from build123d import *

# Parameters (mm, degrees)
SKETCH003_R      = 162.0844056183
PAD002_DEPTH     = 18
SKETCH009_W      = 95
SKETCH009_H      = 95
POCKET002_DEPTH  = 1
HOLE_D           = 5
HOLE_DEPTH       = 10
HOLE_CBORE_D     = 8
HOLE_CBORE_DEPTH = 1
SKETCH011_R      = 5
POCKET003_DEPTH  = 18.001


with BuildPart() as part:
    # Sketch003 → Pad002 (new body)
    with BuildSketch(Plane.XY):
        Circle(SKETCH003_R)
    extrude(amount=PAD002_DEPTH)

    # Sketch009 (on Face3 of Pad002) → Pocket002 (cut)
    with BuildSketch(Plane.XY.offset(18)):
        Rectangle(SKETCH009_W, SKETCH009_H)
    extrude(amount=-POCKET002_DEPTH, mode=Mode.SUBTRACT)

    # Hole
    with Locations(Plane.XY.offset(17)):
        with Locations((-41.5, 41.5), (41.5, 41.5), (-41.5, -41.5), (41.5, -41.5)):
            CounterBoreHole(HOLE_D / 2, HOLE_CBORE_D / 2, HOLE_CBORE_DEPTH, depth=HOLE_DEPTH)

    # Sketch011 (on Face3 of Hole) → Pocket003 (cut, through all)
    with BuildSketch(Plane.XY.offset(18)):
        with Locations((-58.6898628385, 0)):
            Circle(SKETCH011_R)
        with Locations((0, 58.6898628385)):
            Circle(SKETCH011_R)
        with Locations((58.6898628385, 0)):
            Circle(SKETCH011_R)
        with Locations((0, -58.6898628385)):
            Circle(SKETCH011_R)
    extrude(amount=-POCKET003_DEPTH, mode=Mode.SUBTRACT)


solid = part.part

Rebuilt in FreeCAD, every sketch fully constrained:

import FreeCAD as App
import Part
import Sketcher
from FreeCAD import Vector

doc = App.newDocument("Part")
body = doc.addObject("PartDesign::Body", "Body")

sketch1 = body.newObject("Sketcher::SketchObject", "Sketch")
sketch1.AttachmentSupport = (doc.getObject("XY_Plane"), [""])
sketch1.MapMode = "FlatFace"
sketch1.addGeometry(Part.Circle(Vector(0, 0, 0), Vector(0, 0, 1), 162.084406), False)
sketch1.addConstraint([
    Sketcher.Constraint("Coincident", 0, 3, -1, 1),
    Sketcher.Constraint("Diameter", 0, 324.168811),
])
pad1 = body.newObject("PartDesign::Pad", "Pad")
pad1.Profile = sketch1
pad1.Length = 18

sketch2 = body.newObject("Sketcher::SketchObject", "Sketch001")
sketch2.AttachmentSupport = (doc.getObject("XY_Plane"), [""])
sketch2.MapMode = "FlatFace"
sketch2.AttachmentOffset = App.Placement(Vector(0, 0, 18), App.Rotation())
sketch2.addGeometry([
    Part.LineSegment(Vector(-47.5, 47.5, 0), Vector(-47.5, -47.5, 0)),
    Part.LineSegment(Vector(-47.5, -47.5, 0), Vector(47.5, -47.5, 0)),
    Part.LineSegment(Vector(47.5, -47.5, 0), Vector(47.5, 47.5, 0)),
    Part.LineSegment(Vector(47.5, 47.5, 0), Vector(-47.5, 47.5, 0)),
], False)
sketch2.addConstraint([
    Sketcher.Constraint("Coincident", 0, 2, 1, 1),
    Sketcher.Constraint("Coincident", 1, 2, 2, 1),
    Sketcher.Constraint("Coincident", 2, 2, 3, 1),
    Sketcher.Constraint("Coincident", 3, 2, 0, 1),
    Sketcher.Constraint("Vertical", 0),
    Sketcher.Constraint("Horizontal", 1),
    Sketcher.Constraint("Vertical", 2),
    Sketcher.Constraint("Horizontal", 3),
    Sketcher.Constraint("Symmetric", 0, 2, 2, 2, -1, 1),
    Sketcher.Constraint("Equal", 3, 0),
    Sketcher.Constraint("DistanceX", 1, 1, 1, 2, 95.0),
])
pocket1 = body.newObject("PartDesign::Pocket", "Pocket")
pocket1.Profile = sketch2
pocket1.Length = 1

sketch3 = body.newObject("Sketcher::SketchObject", "Sketch002")
sketch3.AttachmentSupport = (doc.getObject("XY_Plane"), [""])
sketch3.MapMode = "FlatFace"
sketch3.AttachmentOffset = App.Placement(Vector(0, 0, 17), App.Rotation())
sketch3.addGeometry([
    Part.Circle(Vector(-41.5, 41.5, 0), Vector(0, 0, 1), 2.5),
    Part.Circle(Vector(41.5, 41.5, 0), Vector(0, 0, 1), 2.5),
    Part.Circle(Vector(-41.5, -41.5, 0), Vector(0, 0, 1), 2.5),
    Part.Circle(Vector(41.5, -41.5, 0), Vector(0, 0, 1), 2.5),
], False)
sketch3.addConstraint([
    Sketcher.Constraint("Equal", 0, 1),
    Sketcher.Constraint("Equal", 1, 2),
    Sketcher.Constraint("Equal", 2, 3),
    Sketcher.Constraint("Symmetric", 1, 3, 2, 3, -1, 1),
    Sketcher.Constraint("Symmetric", 0, 3, 3, 3, -1, 1),
    Sketcher.Constraint("Symmetric", 0, 3, 1, 3, -2),
    Sketcher.Constraint("Diameter", 0, 5.0),
    Sketcher.Constraint("DistanceX", 0, 3, 1, 3, 83.0),
    Sketcher.Constraint("DistanceY", 2, 3, 0, 3, 83.0),
])
doc.recompute()
hole = body.newObject("PartDesign::Hole", "Hole")
hole.Profile = sketch3
hole.ThreadType = "None"
hole.Diameter = 5
hole.DepthType = "Dimension"
hole.Depth = 10
hole.DrillPoint = "Flat"
hole.HoleCutType = "Counterbore"
hole.HoleCutDiameter = 8
hole.HoleCutDepth = 1

sketch4 = body.newObject("Sketcher::SketchObject", "Sketch003")
sketch4.AttachmentSupport = (doc.getObject("XY_Plane"), [""])
sketch4.MapMode = "FlatFace"
sketch4.AttachmentOffset = App.Placement(Vector(0, 0, 18), App.Rotation())
sketch4.addGeometry([
    Part.Circle(Vector(-58.689863, 0, 0), Vector(0, 0, 1), 5),
    Part.Circle(Vector(0, 58.689863, 0), Vector(0, 0, 1), 5),
    Part.Circle(Vector(58.689863, 0, 0), Vector(0, 0, 1), 5),
    Part.Circle(Vector(0, -58.689863, 0), Vector(0, 0, 1), 5),
], False)
sketch4.addConstraint([
    Sketcher.Constraint("Equal", 0, 1),
    Sketcher.Constraint("Equal", 1, 2),
    Sketcher.Constraint("Equal", 2, 3),
    Sketcher.Constraint("Symmetric", 0, 3, 2, 3, -1, 1),
    Sketcher.Constraint("Symmetric", 1, 3, 3, 3, -1, 1),
    Sketcher.Constraint("PointOnObject", 0, 3, -1),
    Sketcher.Constraint("PointOnObject", 1, 3, -2),
    Sketcher.Constraint("Diameter", 0, 10.0),
    Sketcher.Constraint("DistanceX", 0, 3, -1, 1, 58.689863),
    Sketcher.Constraint("DistanceY", -1, 1, 1, 3, 58.689863),
])
pocket2 = body.newObject("PartDesign::Pocket", "Pocket001")
pocket2.Profile = sketch4
pocket2.Type = "ThroughAll"

doc.recompute()
